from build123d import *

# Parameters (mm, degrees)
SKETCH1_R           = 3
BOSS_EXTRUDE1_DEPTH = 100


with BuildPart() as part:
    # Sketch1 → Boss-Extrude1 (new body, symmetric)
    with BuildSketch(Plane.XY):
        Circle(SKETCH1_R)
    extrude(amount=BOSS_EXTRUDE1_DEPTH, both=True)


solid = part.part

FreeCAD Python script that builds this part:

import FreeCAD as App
import Part
import Sketcher
from FreeCAD import Vector

doc = App.newDocument("Part")
params = doc.addObject("Spreadsheet::Sheet", "Params")
for row, (alias, value) in enumerate([
    ("sketch1_diameter", "6 mm"),
    ("pad1_length", "200 mm"),
], start=1):
    params.set(f"A{row}", alias)
    params.set(f"B{row}", "=" + value)
    params.setAlias(f"B{row}", alias)

body = doc.addObject("PartDesign::Body", "Body")

sketch1 = body.newObject("Sketcher::SketchObject", "Sketch")
sketch1.AttachmentSupport = (doc.getObject("XY_Plane"), [""])
sketch1.MapMode = "FlatFace"
sketch1.addGeometry(Part.Circle(Vector(0, 0, 0), Vector(0, 0, 1), 3), False)
sketch1.addConstraint([
    Sketcher.Constraint("Coincident", 0, 3, -1, 1),
    Sketcher.Constraint("Diameter", 0, 6.0),
])
sketch1.setExpression("Constraints[1]", "Params.sketch1_diameter")
pad1 = body.newObject("PartDesign::Pad", "Pad")
pad1.Profile = sketch1
pad1.setExpression("Length", "Params.pad1_length")
pad1.Midplane = True

doc.recompute()
